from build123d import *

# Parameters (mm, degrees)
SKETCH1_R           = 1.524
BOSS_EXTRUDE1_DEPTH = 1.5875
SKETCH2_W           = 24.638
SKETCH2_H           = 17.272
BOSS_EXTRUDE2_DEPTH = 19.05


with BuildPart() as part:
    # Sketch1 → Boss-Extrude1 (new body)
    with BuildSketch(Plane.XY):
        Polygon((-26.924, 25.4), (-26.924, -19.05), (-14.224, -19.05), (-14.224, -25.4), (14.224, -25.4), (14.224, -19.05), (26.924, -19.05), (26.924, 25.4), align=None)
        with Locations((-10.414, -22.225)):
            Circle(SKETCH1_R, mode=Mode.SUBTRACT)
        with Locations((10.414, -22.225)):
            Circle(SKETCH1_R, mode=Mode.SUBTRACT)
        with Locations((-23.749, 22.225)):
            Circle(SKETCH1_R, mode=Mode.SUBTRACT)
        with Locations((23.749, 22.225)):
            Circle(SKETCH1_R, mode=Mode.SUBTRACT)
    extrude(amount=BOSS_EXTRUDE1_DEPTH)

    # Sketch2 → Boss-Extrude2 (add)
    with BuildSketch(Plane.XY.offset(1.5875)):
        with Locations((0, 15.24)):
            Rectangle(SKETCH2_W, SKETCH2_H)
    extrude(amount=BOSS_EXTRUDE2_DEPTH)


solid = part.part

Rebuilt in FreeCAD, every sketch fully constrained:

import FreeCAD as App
import Part
import Sketcher
Q = App.Units.Quantity

doc = App.newDocument("Part")
body = doc.addObject("PartDesign::Body", "Body")

sketch1 = body.newObject("Sketcher::SketchObject", "Sketch")
sketch1.AttachmentSupport = (doc.getObject("XY_Plane"), [""])
sketch1.MapMode = "FlatFace"
sketch1.addGeometry([
    Part.LineSegment(App.Vector(-26.9, 25.4, 0), App.Vector(-26.9, -19.1, 0)),
    Part.LineSegment(App.Vector(-26.9, -19.1, 0), App.Vector(-14.2, -19.1, 0)),
    Part.LineSegment(App.Vector(-14.2, -19.1, 0), App.Vector(-14.2, -25.4, 0)),
    Part.LineSegment(App.Vector(-14.2, -25.4, 0), App.Vector(14.2, -25.4, 0)),
    Part.LineSegment(App.Vector(14.2, -25.4, 0), App.Vector(14.2, -19.1, 0)),
    Part.LineSegment(App.Vector(14.2, -19.1, 0), App.Vector(26.9, -19.1, 0)),
    Part.LineSegment(App.Vector(26.9, -19.1, 0), App.Vector(26.9, 25.4, 0)),
    Part.LineSegment(App.Vector(26.9, 25.4, 0), App.Vector(-26.9, 25.4, 0)),
    Part.Circle(App.Vector(-10.4, -22.2, 0), App.Vector(0, 0, 1), 1.5),
    Part.Circle(App.Vector(10.4, -22.2, 0), App.Vector(0, 0, 1), 1.5),
    Part.Circle(App.Vector(-23.7, 22.2, 0), App.Vector(0, 0, 1), 1.5),
    Part.Circle(App.Vector(23.7, 22.2, 0), App.Vector(0, 0, 1), 1.5),
], False)
sketch1.addConstraint([
    Sketcher.Constraint("Coincident", 0, 2, 1, 1),
    Sketcher.Constraint("Coincident", 1, 2, 2, 1),
    Sketcher.Constraint("Coincident", 2, 2, 3, 1),
    Sketcher.Constraint("Coincident", 3, 2, 4, 1),
    Sketcher.Constraint("Coincident", 4, 2, 5, 1),
    Sketcher.Constraint("Coincident", 5, 2, 6, 1),
    Sketcher.Constraint("Coincident", 6, 2, 7, 1),
    Sketcher.Constraint("Coincident", 7, 2, 0, 1),
    Sketcher.Constraint("Vertical", 0),
    Sketcher.Constraint("Horizontal", 1),
    Sketcher.Constraint("Vertical", 2),
    Sketcher.Constraint("Horizontal", 3),
    Sketcher.Constraint("Vertical", 4),
    Sketcher.Constraint("Horizontal", 5),
    Sketcher.Constraint("Vertical", 6),
    Sketcher.Constraint("Horizontal", 7),
    Sketcher.Constraint("Equal", 8, 9),
    Sketcher.Constraint("Equal", 9, 10),
    Sketcher.Constraint("Equal", 10, 11),
    Sketcher.Constraint("Symmetric", 8, 3, 9, 3, -2),
    Sketcher.Constraint("Symmetric", 10, 3, 11, 3, -2),
    Sketcher.Constraint("Symmetric", 1, 2, 4, 2, -2),
    Sketcher.Constraint("Equal", 1, 5),
    Sketcher.Constraint("Diameter", 8, Q("0.12 in")),
    Sketcher.Constraint("DistanceX", 1, 1, 1, 2, Q("0.5 in")),
    Sketcher.Constraint("DistanceY", 2, 2, -1, 1, Q("1 in")),
    Sketcher.Constraint("DistanceY", -1, 1, 6, 2, Q("1 in")),
    Sketcher.Constraint("DistanceX", 3, 1, 3, 2, Q("1.12 in")),
    Sketcher.Constraint("DistanceY", 0, 2, 0, 1, Q("1.75 in")),
    Sketcher.Constraint("DistanceX", 8, 3, -1, 1, Q("0.41 in")),
    Sketcher.Constraint("DistanceY", 8, 3, 10, 3, Q("1.75 in")),
    Sketcher.Constraint("DistanceX", 10, 3, 11, 3, Q("1.87 in")),
    Sketcher.Constraint("DistanceY", 8, 3, -1, 1, Q("0.875 in")),
])
pad1 = body.newObject("PartDesign::Pad", "Pad")
pad1.Profile = sketch1
pad1.Length = Q("0.0625 in")

sketch2 = body.newObject("Sketcher::SketchObject", "Sketch001")
sketch2.AttachmentSupport = (doc.getObject("XY_Plane"), [""])
sketch2.MapMode = "FlatFace"
sketch2.AttachmentOffset = App.Placement(App.Vector(0, 0, 0.0625 * 25.4), App.Rotation())
sketch2.addGeometry([
    Part.LineSegment(App.Vector(-12, 24, 0), App.Vector(-12, 7, 0)),
    Part.LineSegment(App.Vector(-12, 7, 0), App.Vector(12, 7, 0)),
    Part.LineSegment(App.Vector(12, 7, 0), App.Vector(12, 24, 0)),
    Part.LineSegment(App.Vector(12, 24, 0), App.Vector(-12, 24, 0)),
], False)
sketch2.addConstraint([
    Sketcher.Constraint("Coincident", 0, 2, 1, 1),
    Sketcher.Constraint("Coincident", 1, 2, 2, 1),
    Sketcher.Constraint("Coincident", 2, 2, 3, 1),
    Sketcher.Constraint("Coincident", 3, 2, 0, 1),
    Sketcher.Constraint("Vertical", 0),
    Sketcher.Constraint("Horizontal", 1),
    Sketcher.Constraint("Vertical", 2),
    Sketcher.Constraint("Horizontal", 3),
    Sketcher.Constraint("DistanceX", 1, 1, 1, 2, Q("0.97 in")),
    Sketcher.Constraint("DistanceY", 0, 2, 0, 1, Q("0.68 in")),
    Sketcher.Constraint("DistanceY", -1, 1, 0, 2, Q("0.26 in")),
    Sketcher.Constraint("DistanceX", 0, 2, -1, 1, Q("0.485 in")),
])
pad2 = body.newObject("PartDesign::Pad", "Pad001")
pad2.Profile = sketch2
pad2.Length = Q("0.75 in")

doc.recompute()
